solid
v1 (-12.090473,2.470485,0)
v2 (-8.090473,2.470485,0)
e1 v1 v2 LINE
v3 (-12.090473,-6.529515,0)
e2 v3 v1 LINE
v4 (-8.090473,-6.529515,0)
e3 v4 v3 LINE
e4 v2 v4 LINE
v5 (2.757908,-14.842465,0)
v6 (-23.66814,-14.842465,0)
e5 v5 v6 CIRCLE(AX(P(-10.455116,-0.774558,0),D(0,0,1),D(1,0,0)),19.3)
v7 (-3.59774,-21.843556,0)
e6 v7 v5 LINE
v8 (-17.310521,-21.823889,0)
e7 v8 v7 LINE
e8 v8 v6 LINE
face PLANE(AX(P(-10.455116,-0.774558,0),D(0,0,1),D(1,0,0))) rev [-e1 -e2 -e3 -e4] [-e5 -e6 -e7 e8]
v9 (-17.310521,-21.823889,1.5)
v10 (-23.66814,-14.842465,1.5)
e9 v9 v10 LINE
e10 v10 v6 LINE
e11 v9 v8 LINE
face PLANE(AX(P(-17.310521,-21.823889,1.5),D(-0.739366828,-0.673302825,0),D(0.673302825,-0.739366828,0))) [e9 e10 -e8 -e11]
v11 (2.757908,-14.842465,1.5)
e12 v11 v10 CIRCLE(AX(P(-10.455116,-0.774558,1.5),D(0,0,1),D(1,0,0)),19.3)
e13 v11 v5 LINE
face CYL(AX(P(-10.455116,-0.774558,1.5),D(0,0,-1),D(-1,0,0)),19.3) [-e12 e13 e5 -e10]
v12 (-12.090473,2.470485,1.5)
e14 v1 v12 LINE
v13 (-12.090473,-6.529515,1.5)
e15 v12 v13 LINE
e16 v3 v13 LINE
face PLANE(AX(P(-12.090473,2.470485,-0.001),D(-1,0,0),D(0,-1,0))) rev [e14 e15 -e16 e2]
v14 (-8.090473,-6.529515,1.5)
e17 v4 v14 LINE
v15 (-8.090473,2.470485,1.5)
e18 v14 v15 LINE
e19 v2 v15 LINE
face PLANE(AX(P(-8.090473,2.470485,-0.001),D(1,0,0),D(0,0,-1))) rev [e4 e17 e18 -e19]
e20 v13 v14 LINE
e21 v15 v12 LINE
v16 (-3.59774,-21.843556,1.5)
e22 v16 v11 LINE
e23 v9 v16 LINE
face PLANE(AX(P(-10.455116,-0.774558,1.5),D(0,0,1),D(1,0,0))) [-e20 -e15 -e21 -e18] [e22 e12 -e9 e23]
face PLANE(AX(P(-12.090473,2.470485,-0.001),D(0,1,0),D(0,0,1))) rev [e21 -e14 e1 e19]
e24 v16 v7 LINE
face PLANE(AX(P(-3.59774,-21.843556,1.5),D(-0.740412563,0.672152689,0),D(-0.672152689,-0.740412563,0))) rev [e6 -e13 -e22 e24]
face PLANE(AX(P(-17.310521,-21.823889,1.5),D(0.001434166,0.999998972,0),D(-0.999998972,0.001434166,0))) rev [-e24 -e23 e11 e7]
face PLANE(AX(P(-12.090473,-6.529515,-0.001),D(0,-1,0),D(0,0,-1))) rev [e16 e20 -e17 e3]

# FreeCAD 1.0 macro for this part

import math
import FreeCAD as App
import Part
import Sketcher
Q = App.Units.Quantity

doc = App.newDocument("Part")
params = doc.addObject("Spreadsheet::Sheet", "Params")
for row, (alias, value) in enumerate([
    ("sketch1_radius", "19.3 mm"),
    ("pad1_length", "1.5 mm"),
    ("sketch2_width", "4 mm"),
    ("sketch2_height", "9 mm"),
], start=1):
    params.set(f"A{row}", alias)
    params.set(f"B{row}", "=" + value)
    params.setAlias(f"B{row}", alias)

body = doc.addObject("PartDesign::Body", "Body")

sketch1 = body.newObject("Sketcher::SketchObject", "Sketch")
sketch1.AttachmentSupport = (doc.getObject("XY_Plane"), [""])
sketch1.MapMode = "FlatFace"
sketch1.addGeometry([
    Part.LineSegment(App.Vector(-17, -22, 0), App.Vector(-4, -22, 0)),
    Part.LineSegment(App.Vector(-4, -22, 0), App.Vector(3, -15, 0)),
    Part.ArcOfCircle(Part.Circle(App.Vector(-10, -1, 0), App.Vector(0, 0, 1), 19), math.radians(-47), math.radians(227)),
    Part.LineSegment(App.Vector(-24, -15, 0), App.Vector(-17, -22, 0)),
], False)
sketch1.addConstraint([
    Sketcher.Constraint("Coincident", 0, 2, 1, 1),
    Sketcher.Constraint("Coincident", 1, 2, 2, 1),
    Sketcher.Constraint("Coincident", 2, 2, 3, 1),
    Sketcher.Constraint("Coincident", 3, 2, 0, 1),
    Sketcher.Constraint("Horizontal", 1, 2, 2, 2),
    Sketcher.Constraint("Radius", 2, Q("19.3 mm")),
    Sketcher.Constraint("DistanceX", 2, 2, 0, 2, Q("20.0704 mm")),
    Sketcher.Constraint("Distance", 1, Q("9.455662 mm")),
    Sketcher.Constraint("DistanceY", 2, 3, -1, 1, Q("0.774558 mm")),
    Sketcher.Constraint("DistanceX", 0, 2, -1, 1, Q("3.59774 mm")),
    Sketcher.Constraint("DistanceX", -1, 1, 1, 2, Q("2.757908 mm")),
    Sketcher.Constraint("DistanceX", 3, 2, -1, 1, Q("17.310521 mm")),
    Sketcher.Constraint("DistanceY", 3, 2, -1, 1, Q("21.823889 mm")),
])
sketch1.setExpression("Constraints[5]", "Params.sketch1_radius")
pad1 = body.newObject("PartDesign::Pad", "Pad")
pad1.Profile = sketch1
pad1.setExpression("Length", "Params.pad1_length")

sketch2 = body.newObject("Sketcher::SketchObject", "Sketch001")
sketch2.AttachmentSupport = (doc.getObject("XY_Plane"), [""])
sketch2.MapMode = "FlatFace"
sketch2.AttachmentOffset = App.Placement(App.Vector(0, 0, 1.5), App.Rotation())
sketch2.addGeometry([
    Part.LineSegment(App.Vector(-12.1, 2.5, 0), App.Vector(-12.1, -6.5, 0)),
    Part.LineSegment(App.Vector(-12.1, -6.5, 0), App.Vector(-8.1, -6.5, 0)),
    Part.LineSegment(App.Vector(-8.1, -6.5, 0), App.Vector(-8.1, 2.5, 0)),
    Part.LineSegment(App.Vector(-8.1, 2.5, 0), App.Vector(-12.1, 2.5, 0)),
], False)
sketch2.addConstraint([
    Sketcher.Constraint("Coincident", 0, 2, 1, 1),
    Sketcher.Constraint("Coincident", 1, 2, 2, 1),
    Sketcher.Constraint("Coincident", 2, 2, 3, 1),
    Sketcher.Constraint("Coincident", 3, 2, 0, 1),
    Sketcher.Constraint("Vertical", 0),
    Sketcher.Constraint("Horizontal", 1),
    Sketcher.Constraint("Vertical", 2),
    Sketcher.Constraint("Horizontal", 3),
    Sketcher.Constraint("DistanceX", 1, 1, 1, 2, Q("4 mm")),
    Sketcher.Constraint("DistanceY", 0, 2, 0, 1, Q("9 mm")),
    Sketcher.Constraint("DistanceX", 0, 2, -1, 1, Q("12.090473 mm")),
    Sketcher.Constraint("DistanceY", 0, 2, -1, 1, Q("6.529515 mm")),
])
sketch2.setExpression("Constraints[8]", "Params.sketch2_width")
sketch2.setExpression("Constraints[9]", "Params.sketch2_height")
pocket1 = body.newObject("PartDesign::Pocket", "Pocket")
pocket1.Profile = sketch2
pocket1.Type = "UpToFirst"

doc.recompute()
